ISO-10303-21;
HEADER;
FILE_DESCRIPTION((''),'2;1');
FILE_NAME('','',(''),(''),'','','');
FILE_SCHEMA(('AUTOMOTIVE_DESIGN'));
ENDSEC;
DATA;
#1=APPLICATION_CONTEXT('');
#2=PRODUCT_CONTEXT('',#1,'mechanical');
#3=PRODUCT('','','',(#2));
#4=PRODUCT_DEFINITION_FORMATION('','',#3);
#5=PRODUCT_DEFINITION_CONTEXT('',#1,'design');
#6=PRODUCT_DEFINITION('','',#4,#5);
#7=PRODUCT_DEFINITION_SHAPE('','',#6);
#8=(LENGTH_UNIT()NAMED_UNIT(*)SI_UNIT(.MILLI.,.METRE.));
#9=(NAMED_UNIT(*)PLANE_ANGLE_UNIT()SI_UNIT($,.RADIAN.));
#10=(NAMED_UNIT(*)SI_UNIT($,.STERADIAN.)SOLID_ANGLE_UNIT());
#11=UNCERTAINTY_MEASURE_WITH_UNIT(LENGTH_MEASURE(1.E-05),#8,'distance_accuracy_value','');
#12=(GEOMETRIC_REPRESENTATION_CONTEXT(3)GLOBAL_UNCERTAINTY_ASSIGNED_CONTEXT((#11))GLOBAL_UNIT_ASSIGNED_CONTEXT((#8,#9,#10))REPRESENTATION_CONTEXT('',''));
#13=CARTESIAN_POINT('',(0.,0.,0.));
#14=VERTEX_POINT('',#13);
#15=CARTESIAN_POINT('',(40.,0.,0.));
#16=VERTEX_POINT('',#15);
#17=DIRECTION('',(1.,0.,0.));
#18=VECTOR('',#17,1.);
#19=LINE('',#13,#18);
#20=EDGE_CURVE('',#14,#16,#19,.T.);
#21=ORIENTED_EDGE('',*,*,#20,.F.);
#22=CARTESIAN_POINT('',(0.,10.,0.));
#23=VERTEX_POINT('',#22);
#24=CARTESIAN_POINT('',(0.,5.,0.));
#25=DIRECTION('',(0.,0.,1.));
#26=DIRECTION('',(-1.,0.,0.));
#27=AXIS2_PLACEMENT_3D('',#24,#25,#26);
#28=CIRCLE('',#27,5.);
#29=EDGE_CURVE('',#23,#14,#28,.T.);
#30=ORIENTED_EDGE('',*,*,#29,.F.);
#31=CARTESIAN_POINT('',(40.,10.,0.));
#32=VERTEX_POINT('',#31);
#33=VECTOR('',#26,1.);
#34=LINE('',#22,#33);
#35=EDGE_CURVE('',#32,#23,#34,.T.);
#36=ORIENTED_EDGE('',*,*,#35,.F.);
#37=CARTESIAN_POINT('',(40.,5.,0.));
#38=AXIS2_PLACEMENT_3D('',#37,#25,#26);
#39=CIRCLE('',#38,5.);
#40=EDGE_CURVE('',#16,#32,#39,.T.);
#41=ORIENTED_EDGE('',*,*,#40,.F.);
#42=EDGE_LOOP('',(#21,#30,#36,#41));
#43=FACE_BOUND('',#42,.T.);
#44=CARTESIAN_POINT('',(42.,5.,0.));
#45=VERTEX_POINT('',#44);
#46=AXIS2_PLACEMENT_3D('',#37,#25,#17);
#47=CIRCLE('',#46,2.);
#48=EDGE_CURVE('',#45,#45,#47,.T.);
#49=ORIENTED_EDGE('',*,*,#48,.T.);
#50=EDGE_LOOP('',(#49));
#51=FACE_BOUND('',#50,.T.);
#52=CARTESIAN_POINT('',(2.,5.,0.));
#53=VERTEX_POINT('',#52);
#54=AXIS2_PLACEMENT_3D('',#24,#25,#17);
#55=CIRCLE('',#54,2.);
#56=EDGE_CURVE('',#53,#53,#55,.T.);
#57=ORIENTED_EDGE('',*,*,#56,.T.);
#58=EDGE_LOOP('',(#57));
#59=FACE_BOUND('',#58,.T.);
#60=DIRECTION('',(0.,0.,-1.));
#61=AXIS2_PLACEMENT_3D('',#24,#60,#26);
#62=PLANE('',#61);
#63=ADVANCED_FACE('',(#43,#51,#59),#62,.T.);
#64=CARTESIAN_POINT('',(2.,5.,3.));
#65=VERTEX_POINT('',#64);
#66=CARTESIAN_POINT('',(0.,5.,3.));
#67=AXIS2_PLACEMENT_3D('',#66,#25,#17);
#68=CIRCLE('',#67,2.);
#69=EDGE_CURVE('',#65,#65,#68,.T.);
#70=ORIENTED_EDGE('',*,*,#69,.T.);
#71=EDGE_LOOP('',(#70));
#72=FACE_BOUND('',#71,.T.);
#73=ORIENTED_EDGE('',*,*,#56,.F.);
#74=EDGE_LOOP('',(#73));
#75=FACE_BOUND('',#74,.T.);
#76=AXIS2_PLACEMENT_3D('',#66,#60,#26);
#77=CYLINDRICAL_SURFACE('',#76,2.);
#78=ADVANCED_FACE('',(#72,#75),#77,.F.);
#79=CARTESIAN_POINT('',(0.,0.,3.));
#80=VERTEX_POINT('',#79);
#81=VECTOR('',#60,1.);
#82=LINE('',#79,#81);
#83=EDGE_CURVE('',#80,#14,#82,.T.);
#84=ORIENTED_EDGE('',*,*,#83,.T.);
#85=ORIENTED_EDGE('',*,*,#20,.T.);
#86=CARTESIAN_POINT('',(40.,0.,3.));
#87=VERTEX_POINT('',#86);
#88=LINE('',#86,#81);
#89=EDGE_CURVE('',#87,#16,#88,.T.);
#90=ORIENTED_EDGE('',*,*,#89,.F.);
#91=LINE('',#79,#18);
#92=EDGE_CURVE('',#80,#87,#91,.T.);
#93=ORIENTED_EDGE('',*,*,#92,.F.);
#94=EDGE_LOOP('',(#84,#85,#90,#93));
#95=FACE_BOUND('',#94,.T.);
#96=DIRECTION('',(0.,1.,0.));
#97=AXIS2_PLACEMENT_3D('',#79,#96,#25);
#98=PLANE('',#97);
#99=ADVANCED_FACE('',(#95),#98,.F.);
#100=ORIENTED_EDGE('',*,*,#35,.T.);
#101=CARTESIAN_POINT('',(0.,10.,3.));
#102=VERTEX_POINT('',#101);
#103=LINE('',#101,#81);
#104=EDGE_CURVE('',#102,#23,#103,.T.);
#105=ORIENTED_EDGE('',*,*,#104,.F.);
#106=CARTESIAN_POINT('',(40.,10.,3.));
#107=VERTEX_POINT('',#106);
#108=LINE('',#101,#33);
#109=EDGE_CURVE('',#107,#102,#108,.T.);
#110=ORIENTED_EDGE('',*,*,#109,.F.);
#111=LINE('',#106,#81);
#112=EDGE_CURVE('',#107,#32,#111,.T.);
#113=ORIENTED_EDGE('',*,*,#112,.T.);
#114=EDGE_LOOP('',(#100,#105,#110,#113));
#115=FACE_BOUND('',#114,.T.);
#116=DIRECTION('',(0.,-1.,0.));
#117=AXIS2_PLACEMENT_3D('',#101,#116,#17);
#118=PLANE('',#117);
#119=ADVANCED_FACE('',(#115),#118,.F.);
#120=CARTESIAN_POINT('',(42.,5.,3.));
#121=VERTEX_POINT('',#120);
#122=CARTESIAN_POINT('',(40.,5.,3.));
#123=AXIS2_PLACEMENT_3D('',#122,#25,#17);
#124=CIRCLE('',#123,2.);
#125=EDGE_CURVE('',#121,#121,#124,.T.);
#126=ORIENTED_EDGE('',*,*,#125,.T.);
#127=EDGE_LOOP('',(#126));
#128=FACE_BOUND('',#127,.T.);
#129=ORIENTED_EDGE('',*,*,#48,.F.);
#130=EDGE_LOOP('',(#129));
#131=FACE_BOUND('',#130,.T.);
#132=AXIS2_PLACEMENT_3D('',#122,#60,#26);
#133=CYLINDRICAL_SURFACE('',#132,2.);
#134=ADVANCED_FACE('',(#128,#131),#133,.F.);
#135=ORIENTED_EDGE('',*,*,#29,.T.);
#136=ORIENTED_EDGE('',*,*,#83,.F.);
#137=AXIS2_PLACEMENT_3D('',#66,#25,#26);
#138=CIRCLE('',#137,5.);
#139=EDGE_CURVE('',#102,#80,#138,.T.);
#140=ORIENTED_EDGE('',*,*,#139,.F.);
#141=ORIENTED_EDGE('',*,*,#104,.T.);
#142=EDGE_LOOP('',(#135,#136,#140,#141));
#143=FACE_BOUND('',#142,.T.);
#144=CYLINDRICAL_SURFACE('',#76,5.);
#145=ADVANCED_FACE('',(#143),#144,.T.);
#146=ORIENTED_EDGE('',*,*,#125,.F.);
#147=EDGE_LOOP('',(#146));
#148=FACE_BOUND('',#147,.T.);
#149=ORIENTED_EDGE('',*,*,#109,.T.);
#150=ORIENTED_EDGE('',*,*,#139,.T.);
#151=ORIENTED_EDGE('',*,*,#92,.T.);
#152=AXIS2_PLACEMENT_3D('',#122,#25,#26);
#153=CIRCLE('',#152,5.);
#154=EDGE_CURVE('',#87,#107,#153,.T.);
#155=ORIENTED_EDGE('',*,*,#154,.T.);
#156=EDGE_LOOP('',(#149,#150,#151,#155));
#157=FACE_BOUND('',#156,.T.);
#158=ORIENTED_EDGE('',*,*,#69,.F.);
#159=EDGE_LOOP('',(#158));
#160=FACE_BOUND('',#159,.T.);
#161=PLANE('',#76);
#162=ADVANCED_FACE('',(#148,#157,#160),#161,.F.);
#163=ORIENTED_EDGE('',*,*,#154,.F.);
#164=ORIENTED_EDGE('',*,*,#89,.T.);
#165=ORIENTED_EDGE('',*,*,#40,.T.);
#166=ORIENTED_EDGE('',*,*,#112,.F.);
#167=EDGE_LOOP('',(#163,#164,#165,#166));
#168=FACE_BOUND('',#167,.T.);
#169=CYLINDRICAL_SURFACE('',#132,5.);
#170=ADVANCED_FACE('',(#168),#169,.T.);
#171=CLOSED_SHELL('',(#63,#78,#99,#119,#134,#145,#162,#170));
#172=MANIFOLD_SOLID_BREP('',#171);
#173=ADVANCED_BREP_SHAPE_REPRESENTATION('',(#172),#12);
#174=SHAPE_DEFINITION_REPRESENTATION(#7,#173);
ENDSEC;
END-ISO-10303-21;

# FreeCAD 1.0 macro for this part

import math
import FreeCAD as App
import Part
import Sketcher

V = App.Vector
Q = App.Units.Quantity

doc = App.newDocument("Part")
body = doc.addObject("PartDesign::Body", "Body")

# Sketch on XY plane
sketch1 = body.newObject("Sketcher::SketchObject", "Sketch")
sketch1.AttachmentSupport = (doc.getObject("XY_Plane"), [""])
sketch1.MapMode = "FlatFace"
sketch1.addGeometry([
    Part.LineSegment(V(0, 0, 0), V(40, 0, 0)),  # 0
    Part.ArcOfCircle(Part.Circle(V(40, 5, 0), V(0, 0, 1), 5), math.radians(-90), math.radians(90)),  # 1
    Part.LineSegment(V(40, 10, 0), V(0, 10, 0)),  # 2
    Part.ArcOfCircle(Part.Circle(V(0, 5, 0), V(0, 0, 1), 5), math.radians(90), math.radians(270)),  # 3
    Part.Circle(V(0, 5, 0), V(0, 0, 1), 2),  # 4
    Part.Circle(V(40, 5, 0), V(0, 0, 1), 2),  # 5
], False)
sketch1.addConstraint([
    Sketcher.Constraint("Tangent", 0, 2, 1, 1),
    Sketcher.Constraint("Tangent", 1, 2, 2, 1),
    Sketcher.Constraint("Tangent", 2, 2, 3, 1),
    Sketcher.Constraint("Tangent", 3, 2, 0, 1),
    Sketcher.Constraint("Horizontal", 0),
    Sketcher.Constraint("Horizontal", 2),
    Sketcher.Constraint("Coincident", 3, 2, -1, 1),
    Sketcher.Constraint("Coincident", 4, 3, 3, 3),
    Sketcher.Constraint("Coincident", 5, 3, 1, 3),
    Sketcher.Constraint("Equal", 4, 5),
    Sketcher.Constraint("Diameter", 4, Q("4 mm")),
    Sketcher.Constraint("Radius", 1, Q("5 mm")),
    Sketcher.Constraint("DistanceX", 0, 1, 0, 2, Q("40 mm")),
])
pad1 = body.newObject("PartDesign::Pad", "Pad")
pad1.Profile = sketch1
pad1.Length = 3

doc.recompute()
